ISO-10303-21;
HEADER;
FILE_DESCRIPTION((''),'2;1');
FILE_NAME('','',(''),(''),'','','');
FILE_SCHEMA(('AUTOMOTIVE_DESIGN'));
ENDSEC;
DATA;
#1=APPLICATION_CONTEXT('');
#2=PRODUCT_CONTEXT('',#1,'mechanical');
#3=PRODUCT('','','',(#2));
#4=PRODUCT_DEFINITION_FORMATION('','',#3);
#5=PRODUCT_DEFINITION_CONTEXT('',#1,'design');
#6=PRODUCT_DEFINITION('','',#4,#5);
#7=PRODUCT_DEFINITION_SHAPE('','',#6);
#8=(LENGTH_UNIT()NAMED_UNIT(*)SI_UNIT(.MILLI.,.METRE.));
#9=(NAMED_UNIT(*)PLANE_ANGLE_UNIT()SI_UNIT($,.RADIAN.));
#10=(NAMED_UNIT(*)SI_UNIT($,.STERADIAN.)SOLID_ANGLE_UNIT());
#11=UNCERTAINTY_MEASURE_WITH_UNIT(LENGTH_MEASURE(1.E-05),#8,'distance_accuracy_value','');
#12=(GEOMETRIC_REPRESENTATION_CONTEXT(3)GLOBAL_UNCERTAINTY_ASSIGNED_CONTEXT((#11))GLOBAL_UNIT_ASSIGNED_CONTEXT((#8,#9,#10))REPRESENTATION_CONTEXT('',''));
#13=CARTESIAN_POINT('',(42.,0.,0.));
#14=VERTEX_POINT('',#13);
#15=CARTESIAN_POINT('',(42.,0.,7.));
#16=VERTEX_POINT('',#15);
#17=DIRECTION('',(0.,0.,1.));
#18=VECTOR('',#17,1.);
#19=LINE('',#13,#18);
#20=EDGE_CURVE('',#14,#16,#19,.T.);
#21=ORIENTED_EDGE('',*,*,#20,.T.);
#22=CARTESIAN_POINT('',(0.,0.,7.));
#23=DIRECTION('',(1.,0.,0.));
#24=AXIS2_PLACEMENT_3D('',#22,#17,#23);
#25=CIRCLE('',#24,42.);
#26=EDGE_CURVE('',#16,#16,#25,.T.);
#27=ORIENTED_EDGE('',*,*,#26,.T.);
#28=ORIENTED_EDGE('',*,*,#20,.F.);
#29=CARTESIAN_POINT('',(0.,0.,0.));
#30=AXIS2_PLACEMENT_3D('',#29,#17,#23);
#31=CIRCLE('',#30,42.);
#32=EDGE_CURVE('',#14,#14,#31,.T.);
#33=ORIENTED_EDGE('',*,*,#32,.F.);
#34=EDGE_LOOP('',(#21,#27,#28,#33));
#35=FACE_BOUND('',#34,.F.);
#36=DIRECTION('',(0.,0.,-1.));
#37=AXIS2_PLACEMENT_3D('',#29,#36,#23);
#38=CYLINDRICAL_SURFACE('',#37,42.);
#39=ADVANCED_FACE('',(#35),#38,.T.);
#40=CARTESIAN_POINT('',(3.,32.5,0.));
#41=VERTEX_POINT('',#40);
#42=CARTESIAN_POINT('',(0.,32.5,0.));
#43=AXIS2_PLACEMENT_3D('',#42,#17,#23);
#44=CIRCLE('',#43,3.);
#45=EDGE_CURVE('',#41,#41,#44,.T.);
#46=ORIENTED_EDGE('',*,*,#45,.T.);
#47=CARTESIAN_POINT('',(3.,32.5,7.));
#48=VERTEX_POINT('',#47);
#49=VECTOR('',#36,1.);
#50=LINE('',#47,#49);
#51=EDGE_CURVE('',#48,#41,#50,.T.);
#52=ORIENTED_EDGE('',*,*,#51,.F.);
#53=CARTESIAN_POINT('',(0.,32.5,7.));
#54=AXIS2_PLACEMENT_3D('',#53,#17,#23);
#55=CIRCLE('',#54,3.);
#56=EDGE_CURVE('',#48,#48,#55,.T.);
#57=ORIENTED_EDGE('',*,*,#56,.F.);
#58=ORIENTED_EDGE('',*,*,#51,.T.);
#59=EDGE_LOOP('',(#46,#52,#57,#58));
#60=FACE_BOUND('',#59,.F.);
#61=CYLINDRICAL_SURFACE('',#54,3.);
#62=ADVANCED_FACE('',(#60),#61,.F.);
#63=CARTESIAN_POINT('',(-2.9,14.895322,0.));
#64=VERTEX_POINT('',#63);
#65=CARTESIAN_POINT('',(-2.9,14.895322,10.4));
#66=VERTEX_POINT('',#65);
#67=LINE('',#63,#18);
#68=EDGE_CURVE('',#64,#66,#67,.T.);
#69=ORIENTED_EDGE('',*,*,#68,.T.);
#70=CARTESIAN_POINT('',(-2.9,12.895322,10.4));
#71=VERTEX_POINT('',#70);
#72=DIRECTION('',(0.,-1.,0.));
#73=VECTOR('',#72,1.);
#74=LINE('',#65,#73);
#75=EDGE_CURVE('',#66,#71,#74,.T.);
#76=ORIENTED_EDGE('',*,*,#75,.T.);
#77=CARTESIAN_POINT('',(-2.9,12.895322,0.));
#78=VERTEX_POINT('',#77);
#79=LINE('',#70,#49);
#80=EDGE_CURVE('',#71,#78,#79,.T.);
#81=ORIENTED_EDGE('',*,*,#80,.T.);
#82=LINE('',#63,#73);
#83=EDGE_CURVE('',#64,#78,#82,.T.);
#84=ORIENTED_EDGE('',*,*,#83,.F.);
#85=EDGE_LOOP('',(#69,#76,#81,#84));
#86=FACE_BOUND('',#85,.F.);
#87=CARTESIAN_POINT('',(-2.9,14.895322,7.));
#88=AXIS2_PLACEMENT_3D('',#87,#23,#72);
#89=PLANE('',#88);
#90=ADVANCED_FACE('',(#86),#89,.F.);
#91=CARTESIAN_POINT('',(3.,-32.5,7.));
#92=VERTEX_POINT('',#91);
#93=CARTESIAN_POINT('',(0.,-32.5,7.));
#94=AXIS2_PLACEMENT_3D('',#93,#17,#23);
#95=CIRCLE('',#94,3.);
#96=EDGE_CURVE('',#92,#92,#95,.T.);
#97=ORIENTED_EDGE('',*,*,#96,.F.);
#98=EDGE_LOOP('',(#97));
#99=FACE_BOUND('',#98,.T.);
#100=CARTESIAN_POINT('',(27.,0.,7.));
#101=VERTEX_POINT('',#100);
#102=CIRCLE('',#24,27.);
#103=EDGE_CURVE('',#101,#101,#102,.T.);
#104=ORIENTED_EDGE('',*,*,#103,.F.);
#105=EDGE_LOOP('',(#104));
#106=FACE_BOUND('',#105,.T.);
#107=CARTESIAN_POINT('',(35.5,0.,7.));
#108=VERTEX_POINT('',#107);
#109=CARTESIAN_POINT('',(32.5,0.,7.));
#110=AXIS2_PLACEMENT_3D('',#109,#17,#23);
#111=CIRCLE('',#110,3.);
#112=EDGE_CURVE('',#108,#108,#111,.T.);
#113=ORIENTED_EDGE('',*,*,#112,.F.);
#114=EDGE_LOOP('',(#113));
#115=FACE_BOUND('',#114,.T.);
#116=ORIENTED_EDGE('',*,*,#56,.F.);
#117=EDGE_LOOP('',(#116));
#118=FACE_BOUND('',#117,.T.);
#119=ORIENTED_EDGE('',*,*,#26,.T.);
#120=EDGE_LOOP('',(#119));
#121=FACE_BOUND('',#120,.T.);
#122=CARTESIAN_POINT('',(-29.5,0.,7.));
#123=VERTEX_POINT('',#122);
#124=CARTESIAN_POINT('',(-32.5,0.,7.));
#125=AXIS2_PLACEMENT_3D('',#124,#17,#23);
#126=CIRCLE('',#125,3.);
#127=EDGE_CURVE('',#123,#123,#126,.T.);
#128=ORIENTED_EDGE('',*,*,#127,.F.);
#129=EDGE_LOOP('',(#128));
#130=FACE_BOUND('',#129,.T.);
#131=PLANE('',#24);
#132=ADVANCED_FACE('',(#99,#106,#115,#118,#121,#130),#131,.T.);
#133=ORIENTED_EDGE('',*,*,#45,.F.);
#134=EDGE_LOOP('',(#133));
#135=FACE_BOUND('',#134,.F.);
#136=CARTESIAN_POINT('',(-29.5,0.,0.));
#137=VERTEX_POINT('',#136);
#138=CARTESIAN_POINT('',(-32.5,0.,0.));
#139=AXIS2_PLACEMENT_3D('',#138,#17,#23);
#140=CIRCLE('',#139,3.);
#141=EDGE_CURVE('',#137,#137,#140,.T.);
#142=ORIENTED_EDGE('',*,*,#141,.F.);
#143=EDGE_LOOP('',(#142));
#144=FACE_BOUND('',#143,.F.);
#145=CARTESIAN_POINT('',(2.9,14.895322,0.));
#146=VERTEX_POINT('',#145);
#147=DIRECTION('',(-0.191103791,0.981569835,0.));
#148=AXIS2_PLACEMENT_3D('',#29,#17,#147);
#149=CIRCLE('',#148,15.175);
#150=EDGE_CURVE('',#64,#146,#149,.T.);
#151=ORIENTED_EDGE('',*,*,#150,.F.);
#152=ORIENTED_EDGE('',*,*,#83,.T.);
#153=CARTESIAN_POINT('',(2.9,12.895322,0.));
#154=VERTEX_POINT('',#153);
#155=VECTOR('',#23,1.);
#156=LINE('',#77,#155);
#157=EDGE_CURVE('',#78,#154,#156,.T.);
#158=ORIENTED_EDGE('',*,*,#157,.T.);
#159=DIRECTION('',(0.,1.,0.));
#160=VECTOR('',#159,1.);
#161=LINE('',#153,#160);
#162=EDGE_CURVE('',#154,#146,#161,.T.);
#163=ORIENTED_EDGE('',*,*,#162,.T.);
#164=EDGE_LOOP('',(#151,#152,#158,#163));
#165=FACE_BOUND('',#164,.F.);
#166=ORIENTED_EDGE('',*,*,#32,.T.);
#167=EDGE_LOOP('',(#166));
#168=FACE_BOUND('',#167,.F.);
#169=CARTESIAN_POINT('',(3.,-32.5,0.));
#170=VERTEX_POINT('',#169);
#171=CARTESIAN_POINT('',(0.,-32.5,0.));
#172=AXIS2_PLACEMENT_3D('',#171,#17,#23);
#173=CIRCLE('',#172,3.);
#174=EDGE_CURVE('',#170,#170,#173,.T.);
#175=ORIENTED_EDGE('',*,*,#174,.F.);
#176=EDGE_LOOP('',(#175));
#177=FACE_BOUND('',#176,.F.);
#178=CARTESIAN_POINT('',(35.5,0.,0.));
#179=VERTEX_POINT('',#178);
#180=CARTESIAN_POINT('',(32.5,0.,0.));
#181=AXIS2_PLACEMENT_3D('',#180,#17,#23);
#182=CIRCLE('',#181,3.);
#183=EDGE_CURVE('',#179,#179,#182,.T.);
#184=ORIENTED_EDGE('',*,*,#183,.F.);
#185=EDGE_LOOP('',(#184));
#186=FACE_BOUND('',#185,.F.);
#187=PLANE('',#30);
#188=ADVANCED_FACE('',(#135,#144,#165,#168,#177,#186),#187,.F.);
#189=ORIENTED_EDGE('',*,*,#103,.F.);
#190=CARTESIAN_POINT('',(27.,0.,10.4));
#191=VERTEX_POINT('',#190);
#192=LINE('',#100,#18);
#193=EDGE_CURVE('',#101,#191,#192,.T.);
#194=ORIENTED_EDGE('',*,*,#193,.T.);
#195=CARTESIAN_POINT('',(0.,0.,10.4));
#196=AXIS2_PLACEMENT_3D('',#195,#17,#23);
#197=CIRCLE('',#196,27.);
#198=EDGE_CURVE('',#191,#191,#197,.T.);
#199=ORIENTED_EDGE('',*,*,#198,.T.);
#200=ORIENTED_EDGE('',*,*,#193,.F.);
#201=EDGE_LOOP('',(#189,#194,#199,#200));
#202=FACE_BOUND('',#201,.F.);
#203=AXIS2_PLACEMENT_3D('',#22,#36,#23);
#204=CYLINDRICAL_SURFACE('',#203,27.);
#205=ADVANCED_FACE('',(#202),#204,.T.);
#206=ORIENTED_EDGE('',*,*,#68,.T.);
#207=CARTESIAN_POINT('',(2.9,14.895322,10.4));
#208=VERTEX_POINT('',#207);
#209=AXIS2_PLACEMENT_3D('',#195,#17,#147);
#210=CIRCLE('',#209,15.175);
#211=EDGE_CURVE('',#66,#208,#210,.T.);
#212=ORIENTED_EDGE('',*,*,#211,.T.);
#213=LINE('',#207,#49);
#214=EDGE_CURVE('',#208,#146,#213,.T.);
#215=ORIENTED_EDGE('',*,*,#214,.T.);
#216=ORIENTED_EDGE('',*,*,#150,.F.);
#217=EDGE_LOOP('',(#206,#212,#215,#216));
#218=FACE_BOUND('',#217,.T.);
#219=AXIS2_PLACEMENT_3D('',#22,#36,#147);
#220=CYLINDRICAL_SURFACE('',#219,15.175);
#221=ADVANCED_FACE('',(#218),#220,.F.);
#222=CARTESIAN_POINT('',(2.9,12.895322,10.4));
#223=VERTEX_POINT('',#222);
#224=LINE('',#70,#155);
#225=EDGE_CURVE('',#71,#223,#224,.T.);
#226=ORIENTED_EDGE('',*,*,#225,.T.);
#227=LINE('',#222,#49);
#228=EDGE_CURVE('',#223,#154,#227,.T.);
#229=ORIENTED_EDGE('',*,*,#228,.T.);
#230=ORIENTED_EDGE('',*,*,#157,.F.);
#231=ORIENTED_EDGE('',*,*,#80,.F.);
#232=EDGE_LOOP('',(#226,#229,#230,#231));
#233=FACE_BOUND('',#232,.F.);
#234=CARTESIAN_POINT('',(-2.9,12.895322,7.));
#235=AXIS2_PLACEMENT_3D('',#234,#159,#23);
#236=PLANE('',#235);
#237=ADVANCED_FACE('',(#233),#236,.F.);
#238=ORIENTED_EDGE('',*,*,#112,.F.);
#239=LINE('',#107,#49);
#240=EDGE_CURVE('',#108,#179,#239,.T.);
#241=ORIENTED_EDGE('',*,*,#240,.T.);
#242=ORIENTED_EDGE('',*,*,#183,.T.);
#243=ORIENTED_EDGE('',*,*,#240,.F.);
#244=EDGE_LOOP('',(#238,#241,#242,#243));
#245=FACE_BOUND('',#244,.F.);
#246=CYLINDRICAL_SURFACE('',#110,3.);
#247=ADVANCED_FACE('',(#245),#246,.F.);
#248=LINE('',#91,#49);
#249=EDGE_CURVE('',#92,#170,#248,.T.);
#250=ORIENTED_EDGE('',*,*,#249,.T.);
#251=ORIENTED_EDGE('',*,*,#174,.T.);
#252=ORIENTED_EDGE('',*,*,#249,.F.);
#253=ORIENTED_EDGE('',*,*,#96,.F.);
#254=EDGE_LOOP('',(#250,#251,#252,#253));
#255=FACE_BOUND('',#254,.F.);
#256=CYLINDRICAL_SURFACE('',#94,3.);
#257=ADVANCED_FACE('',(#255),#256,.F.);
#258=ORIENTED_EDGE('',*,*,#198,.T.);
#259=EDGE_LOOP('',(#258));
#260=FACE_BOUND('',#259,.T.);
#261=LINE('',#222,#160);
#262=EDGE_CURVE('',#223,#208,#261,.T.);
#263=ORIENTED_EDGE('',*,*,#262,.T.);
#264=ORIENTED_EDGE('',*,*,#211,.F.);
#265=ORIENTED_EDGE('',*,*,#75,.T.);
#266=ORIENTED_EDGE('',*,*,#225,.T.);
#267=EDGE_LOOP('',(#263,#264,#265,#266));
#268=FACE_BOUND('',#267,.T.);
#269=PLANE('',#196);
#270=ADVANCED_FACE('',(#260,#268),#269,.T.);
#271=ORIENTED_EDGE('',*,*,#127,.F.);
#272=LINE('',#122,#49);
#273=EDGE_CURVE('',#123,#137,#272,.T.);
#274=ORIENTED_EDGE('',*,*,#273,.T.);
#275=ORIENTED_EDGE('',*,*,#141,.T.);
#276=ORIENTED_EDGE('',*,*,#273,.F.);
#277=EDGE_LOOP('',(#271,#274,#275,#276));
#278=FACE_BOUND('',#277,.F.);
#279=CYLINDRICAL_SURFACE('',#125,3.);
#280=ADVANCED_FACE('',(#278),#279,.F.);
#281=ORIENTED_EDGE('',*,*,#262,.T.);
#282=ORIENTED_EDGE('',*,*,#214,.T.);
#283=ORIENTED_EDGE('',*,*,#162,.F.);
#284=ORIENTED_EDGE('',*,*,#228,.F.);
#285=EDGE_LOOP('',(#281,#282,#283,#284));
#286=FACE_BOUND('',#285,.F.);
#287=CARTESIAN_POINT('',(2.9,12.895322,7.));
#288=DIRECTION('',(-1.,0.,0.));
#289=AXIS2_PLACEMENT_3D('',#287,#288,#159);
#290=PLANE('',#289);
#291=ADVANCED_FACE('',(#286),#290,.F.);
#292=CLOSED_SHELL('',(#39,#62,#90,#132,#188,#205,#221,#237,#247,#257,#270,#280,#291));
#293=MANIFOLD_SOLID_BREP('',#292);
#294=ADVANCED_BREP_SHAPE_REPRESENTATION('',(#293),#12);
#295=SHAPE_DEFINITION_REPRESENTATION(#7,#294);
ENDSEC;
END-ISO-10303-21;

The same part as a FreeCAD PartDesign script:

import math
import FreeCAD as App
import Part
import Sketcher

V = App.Vector

doc = App.newDocument("Part")
body = doc.addObject("PartDesign::Body", "Body")

# Sketch on XY plane
sketch1 = body.newObject("Sketcher::SketchObject", "Sketch")
sketch1.AttachmentSupport = (doc.getObject("XY_Plane"), [""])
sketch1.MapMode = "FlatFace"
sketch1.addGeometry([
    Part.Circle(V(0, 0, 0), V(0, 0, 1), 42),  # 0
    Part.ArcOfCircle(Part.Circle(V(0, 0, 0), V(0, 0, 1), 15.2), math.radians(101), math.radians(439)),  # 1
    Part.LineSegment(V(-2.9, 14.9, 0), V(-2.9, 12.9, 0)),  # 2
    Part.LineSegment(V(-2.9, 12.9, 0), V(2.9, 12.9, 0)),  # 3
    Part.LineSegment(V(2.9, 12.9, 0), V(2.9, 14.9, 0)),  # 4
], False)
sketch1.addConstraint([
    Sketcher.Constraint("Coincident", 1, 1, 2, 1),
    Sketcher.Constraint("Coincident", 2, 2, 3, 1),
    Sketcher.Constraint("Coincident", 3, 2, 4, 1),
    Sketcher.Constraint("Coincident", 4, 2, 1, 2),
    Sketcher.Constraint("Vertical", 2),
    Sketcher.Constraint("Horizontal", 3),
    Sketcher.Constraint("Vertical", 4),
    Sketcher.Constraint("Coincident", 0, 3, -1, 1),
    Sketcher.Constraint("Coincident", 1, 3, -1, 1),
    Sketcher.Constraint("Horizontal", 1, 1, 4, 2),
    Sketcher.Constraint("Diameter", 0, 84.0),
    Sketcher.Constraint("DistanceY", 2, 2, 2, 1, 2.0),
    Sketcher.Constraint("DistanceX", 3, 1, 3, 2, 5.8),
    Sketcher.Constraint("Radius", 1, 15.175),
])
pad1 = body.newObject("PartDesign::Pad", "Pad")
pad1.Profile = sketch1
pad1.Length = 7

# Sketch on XY plane
sketch2 = body.newObject("Sketcher::SketchObject", "Sketch001")
sketch2.AttachmentSupport = (doc.getObject("XY_Plane"), [""])
sketch2.MapMode = "FlatFace"
sketch2.AttachmentOffset = App.Placement(V(0, 0, 7), App.Rotation())
sketch2.addGeometry([
    Part.Circle(V(0, 0, 0), V(0, 0, 1), 27),  # 0
    Part.ArcOfCircle(Part.Circle(V(0, 0, 0), V(0, 0, 1), 15.2), math.radians(101), math.radians(439)),  # 1
    Part.LineSegment(V(-2.9, 14.9, 0), V(-2.9, 12.9, 0)),  # 2
    Part.LineSegment(V(-2.9, 12.9, 0), V(2.9, 12.9, 0)),  # 3
    Part.LineSegment(V(2.9, 12.9, 0), V(2.9, 14.9, 0)),  # 4
], False)
sketch2.addConstraint([
    Sketcher.Constraint("Coincident", 1, 1, 2, 1),
    Sketcher.Constraint("Coincident", 2, 2, 3, 1),
    Sketcher.Constraint("Coincident", 3, 2, 4, 1),
    Sketcher.Constraint("Coincident", 4, 2, 1, 2),
    Sketcher.Constraint("Vertical", 2),
    Sketcher.Constraint("Horizontal", 3),
    Sketcher.Constraint("Vertical", 4),
    Sketcher.Constraint("Coincident", 0, 3, -1, 1),
    Sketcher.Constraint("Coincident", 1, 3, -1, 1),
    Sketcher.Constraint("Horizontal", 1, 1, 4, 2),
    Sketcher.Constraint("Diameter", 0, 54.0),
    Sketcher.Constraint("DistanceY", 2, 2, 2, 1, 2.0),
    Sketcher.Constraint("DistanceX", 3, 1, 3, 2, 5.8),
    Sketcher.Constraint("Radius", 1, 15.175),
])
pad2 = body.newObject("PartDesign::Pad", "Pad001")
pad2.Profile = sketch2
pad2.Length = 3.4

# Sketch on XY plane
sketch3 = body.newObject("Sketcher::SketchObject", "Sketch002")
sketch3.AttachmentSupport = (doc.getObject("XY_Plane"), [""])
sketch3.MapMode = "FlatFace"
sketch3.AttachmentOffset = App.Placement(V(0, 0, 7), App.Rotation())
sketch3.addGeometry([
    Part.Circle(V(0, 32.5, 0), V(0, 0, 1), 3),
    Part.Circle(V(0, -32.5, 0), V(0, 0, 1), 3),
    Part.Circle(V(32.5, 0, 0), V(0, 0, 1), 3),
    Part.Circle(V(-32.5, 0, 0), V(0, 0, 1), 3),
], False)
sketch3.addConstraint([
    Sketcher.Constraint("Equal", 0, 1),
    Sketcher.Constraint("Equal", 1, 2),
    Sketcher.Constraint("Equal", 2, 3),
    Sketcher.Constraint("Symmetric", 0, 3, 1, 3, -1, 1),
    Sketcher.Constraint("Symmetric", 2, 3, 3, 3, -1, 1),
    Sketcher.Constraint("PointOnObject", 0, 3, -2),
    Sketcher.Constraint("PointOnObject", 2, 3, -1),
    Sketcher.Constraint("Diameter", 0, 6.0),
    Sketcher.Constraint("DistanceY", 1, 3, 0, 3, 65.0),
    Sketcher.Constraint("DistanceX", 3, 3, 2, 3, 65.0),
])
pocket1 = body.newObject("PartDesign::Pocket", "Pocket")
pocket1.Profile = sketch3
pocket1.Length = 25

doc.recompute()
